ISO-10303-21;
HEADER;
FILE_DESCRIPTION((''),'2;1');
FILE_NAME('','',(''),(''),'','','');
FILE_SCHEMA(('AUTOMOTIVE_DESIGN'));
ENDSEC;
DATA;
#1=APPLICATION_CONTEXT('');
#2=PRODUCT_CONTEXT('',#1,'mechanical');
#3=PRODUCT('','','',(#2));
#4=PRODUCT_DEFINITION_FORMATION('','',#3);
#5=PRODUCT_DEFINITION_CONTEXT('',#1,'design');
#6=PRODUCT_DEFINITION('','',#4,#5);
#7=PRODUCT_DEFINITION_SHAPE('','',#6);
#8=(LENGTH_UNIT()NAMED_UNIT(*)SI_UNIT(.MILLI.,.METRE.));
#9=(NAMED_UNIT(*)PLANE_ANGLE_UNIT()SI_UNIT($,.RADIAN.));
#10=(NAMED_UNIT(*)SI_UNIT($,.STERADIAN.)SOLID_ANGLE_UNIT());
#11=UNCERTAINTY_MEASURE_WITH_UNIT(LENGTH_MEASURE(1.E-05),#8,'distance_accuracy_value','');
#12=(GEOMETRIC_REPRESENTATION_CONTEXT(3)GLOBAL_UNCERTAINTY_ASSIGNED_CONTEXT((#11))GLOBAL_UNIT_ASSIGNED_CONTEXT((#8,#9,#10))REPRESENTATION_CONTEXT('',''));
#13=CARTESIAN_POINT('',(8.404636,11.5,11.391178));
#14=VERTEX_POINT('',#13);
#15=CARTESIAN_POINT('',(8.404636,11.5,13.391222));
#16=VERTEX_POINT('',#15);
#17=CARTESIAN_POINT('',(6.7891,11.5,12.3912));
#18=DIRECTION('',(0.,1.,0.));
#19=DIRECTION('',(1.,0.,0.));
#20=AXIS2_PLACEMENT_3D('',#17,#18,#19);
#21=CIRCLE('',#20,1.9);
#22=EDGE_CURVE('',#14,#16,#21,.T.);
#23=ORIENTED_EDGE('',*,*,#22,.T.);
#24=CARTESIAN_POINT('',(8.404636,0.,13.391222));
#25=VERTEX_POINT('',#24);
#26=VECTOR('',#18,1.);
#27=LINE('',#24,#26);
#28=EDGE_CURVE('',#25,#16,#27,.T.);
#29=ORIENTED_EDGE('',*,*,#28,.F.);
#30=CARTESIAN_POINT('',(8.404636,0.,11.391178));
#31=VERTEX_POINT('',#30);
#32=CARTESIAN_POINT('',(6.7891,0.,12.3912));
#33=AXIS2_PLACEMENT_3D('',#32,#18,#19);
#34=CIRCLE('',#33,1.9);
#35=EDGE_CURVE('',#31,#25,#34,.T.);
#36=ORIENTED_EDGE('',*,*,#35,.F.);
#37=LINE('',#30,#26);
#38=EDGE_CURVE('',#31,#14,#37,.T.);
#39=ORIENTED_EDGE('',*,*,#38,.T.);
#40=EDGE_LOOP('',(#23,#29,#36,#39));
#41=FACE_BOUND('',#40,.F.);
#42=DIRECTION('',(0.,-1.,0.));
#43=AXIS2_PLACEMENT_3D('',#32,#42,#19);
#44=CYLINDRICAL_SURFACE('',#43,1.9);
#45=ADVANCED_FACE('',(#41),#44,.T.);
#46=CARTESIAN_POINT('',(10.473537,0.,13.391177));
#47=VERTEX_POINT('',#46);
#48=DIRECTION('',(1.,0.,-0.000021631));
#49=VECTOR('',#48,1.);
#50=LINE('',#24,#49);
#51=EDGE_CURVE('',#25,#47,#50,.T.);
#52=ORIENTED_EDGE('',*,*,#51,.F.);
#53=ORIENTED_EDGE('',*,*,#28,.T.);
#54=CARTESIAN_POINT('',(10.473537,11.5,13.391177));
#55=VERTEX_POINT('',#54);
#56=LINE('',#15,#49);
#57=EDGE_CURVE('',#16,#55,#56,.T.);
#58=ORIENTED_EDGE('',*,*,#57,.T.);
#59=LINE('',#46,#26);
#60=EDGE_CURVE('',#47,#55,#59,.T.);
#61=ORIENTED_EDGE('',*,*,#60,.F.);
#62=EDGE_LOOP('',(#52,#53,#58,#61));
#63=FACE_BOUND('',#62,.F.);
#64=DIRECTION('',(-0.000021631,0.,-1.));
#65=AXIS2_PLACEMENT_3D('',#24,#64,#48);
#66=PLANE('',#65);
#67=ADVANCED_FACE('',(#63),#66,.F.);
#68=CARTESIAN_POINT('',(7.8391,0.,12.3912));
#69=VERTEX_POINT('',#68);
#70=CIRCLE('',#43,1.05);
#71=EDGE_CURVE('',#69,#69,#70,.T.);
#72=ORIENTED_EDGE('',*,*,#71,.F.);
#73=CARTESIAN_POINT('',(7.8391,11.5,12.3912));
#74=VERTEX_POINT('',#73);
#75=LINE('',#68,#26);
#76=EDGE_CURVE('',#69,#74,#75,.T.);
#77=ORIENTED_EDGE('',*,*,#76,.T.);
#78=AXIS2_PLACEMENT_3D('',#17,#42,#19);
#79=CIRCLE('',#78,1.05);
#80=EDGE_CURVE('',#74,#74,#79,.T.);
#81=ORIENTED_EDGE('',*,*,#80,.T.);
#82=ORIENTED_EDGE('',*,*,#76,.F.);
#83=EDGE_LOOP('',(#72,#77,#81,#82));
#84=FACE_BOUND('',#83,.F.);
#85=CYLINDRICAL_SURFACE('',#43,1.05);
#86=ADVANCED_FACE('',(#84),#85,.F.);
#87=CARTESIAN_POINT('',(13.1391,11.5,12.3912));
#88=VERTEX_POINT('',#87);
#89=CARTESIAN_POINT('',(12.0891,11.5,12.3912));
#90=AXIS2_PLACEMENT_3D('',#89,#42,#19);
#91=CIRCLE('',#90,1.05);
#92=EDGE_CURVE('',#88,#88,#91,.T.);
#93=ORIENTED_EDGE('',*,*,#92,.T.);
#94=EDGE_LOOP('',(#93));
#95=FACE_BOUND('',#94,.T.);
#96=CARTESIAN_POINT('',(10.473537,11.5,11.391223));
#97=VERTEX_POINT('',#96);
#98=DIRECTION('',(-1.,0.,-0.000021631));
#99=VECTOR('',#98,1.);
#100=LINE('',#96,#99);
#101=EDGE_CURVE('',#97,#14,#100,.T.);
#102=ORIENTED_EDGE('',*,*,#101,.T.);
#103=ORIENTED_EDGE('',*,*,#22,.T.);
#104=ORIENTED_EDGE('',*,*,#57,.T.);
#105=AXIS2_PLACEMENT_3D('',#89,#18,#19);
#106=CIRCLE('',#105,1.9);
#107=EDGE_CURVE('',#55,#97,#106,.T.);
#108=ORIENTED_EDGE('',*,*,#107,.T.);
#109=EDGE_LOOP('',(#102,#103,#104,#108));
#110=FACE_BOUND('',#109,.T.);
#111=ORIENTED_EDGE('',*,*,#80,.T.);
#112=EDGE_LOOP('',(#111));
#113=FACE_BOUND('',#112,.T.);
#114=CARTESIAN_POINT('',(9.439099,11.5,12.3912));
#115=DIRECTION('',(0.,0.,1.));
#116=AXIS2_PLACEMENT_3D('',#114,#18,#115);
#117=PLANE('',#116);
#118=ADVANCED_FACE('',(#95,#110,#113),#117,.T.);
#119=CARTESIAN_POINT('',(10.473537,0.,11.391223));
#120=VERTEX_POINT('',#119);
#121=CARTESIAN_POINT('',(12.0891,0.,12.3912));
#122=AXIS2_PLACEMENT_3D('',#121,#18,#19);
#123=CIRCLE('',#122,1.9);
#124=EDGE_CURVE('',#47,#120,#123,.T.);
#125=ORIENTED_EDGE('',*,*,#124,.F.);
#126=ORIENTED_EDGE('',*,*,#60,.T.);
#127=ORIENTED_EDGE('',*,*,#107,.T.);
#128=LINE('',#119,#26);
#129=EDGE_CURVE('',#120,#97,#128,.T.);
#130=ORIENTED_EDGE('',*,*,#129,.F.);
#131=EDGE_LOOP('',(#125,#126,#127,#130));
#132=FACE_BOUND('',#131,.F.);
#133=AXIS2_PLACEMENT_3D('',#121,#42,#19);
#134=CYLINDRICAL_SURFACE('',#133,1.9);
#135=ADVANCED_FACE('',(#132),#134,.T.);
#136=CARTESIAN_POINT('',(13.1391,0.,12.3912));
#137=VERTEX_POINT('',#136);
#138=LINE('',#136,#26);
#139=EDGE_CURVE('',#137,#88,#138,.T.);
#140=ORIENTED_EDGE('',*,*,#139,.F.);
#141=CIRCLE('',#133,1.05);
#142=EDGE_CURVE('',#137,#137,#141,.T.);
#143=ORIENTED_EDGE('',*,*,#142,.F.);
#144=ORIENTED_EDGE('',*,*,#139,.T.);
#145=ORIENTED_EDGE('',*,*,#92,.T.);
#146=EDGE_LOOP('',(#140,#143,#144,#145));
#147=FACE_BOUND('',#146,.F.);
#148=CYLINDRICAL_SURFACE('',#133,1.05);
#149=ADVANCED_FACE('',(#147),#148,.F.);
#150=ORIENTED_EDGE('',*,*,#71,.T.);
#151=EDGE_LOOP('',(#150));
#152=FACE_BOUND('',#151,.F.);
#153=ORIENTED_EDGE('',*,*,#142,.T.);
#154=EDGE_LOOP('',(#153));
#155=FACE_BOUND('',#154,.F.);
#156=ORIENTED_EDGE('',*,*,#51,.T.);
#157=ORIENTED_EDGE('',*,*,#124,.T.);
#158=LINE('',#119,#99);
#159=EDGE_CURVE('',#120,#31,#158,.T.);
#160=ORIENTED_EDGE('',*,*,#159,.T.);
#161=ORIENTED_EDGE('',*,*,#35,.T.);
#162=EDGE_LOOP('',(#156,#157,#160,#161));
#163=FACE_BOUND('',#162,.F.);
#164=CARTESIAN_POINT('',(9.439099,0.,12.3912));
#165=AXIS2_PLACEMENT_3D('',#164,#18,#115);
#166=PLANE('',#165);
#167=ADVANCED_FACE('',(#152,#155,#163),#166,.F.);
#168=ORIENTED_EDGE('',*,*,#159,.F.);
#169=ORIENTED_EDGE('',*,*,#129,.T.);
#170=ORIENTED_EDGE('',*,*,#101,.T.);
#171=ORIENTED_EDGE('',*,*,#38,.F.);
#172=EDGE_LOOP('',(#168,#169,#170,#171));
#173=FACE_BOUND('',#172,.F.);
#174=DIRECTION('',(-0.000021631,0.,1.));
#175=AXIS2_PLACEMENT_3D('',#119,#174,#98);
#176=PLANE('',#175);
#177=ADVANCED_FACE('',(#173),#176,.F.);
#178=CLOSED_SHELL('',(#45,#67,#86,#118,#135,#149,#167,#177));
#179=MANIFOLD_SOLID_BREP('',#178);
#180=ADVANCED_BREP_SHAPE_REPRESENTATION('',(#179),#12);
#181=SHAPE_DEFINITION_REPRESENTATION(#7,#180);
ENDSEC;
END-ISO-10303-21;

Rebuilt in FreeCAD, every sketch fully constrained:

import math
import FreeCAD as App
import Part
import Sketcher

V = App.Vector
Q = App.Units.Quantity

doc = App.newDocument("Part")
body = doc.addObject("PartDesign::Body", "Body")

# Sketch on XZ plane
sketch1 = body.newObject("Sketcher::SketchObject", "Sketch")
sketch1.AttachmentSupport = (doc.getObject("XZ_Plane"), [""])
sketch1.MapMode = "FlatFace"
sketch1.addGeometry(Part.LineSegment(V(10.5, 13.4, 0), V(8.4, 13.4, 0)), False)
sketch1.addGeometry(Part.ArcOfCircle(Part.Circle(V(6.8, 12.4, 0), V(0, 0, 1), 1.9), math.radians(32), math.radians(328)), False)
sketch1.addGeometry(Part.LineSegment(V(8.4, 11.4, 0), V(10.5, 11.4, 0)), False)
sketch1.addGeometry(Part.ArcOfCircle(Part.Circle(V(12.1, 12.4, 0), V(0, 0, 1), 1.9), math.radians(-148), math.radians(148)), False)
sketch1.addGeometry(Part.Circle(V(6.8, 12.4, 0), V(0, 0, 1), 1.1), False)
sketch1.addGeometry(Part.Circle(V(12.1, 12.4, 0), V(0, 0, 1), 1.1), False)
sketch1.addConstraint(Sketcher.Constraint("Coincident", 0, 2, 1, 1))
sketch1.addConstraint(Sketcher.Constraint("Coincident", 1, 2, 2, 1))
sketch1.addConstraint(Sketcher.Constraint("Coincident", 2, 2, 3, 1))
sketch1.addConstraint(Sketcher.Constraint("Coincident", 3, 2, 0, 1))
sketch1.addConstraint(Sketcher.Constraint("Horizontal", 0))
sketch1.addConstraint(Sketcher.Constraint("Horizontal", 2))
sketch1.addConstraint(Sketcher.Constraint("Coincident", 4, 3, 1, 3))
sketch1.addConstraint(Sketcher.Constraint("Coincident", 5, 3, 3, 3))
sketch1.addConstraint(Sketcher.Constraint("Equal", 1, 3))
sketch1.addConstraint(Sketcher.Constraint("Equal", 4, 5))
sketch1.addConstraint(Sketcher.Constraint("Horizontal", 1, 3, 3, 3))
sketch1.addConstraint(Sketcher.Constraint("Vertical", 0, 2, 1, 2))
sketch1.addConstraint(Sketcher.Constraint("Diameter", 4, Q("2.1 mm")))
sketch1.addConstraint(Sketcher.Constraint("Radius", 1, Q("1.9 mm")))
sketch1.addConstraint(Sketcher.Constraint("DistanceY", 1, 3, 0, 2, Q("1 mm")))
sketch1.addConstraint(Sketcher.Constraint("DistanceX", 1, 3, 3, 3, Q("5.3 mm")))
sketch1.addConstraint(Sketcher.Constraint("DistanceX", -1, 1, 1, 3, Q("6.789 mm")))
sketch1.addConstraint(Sketcher.Constraint("DistanceY", -1, 1, 1, 3, Q("12.3912 mm")))
pad1 = body.newObject("PartDesign::Pad", "Pad")
pad1.Profile = sketch1
pad1.Length = 11.5
pad1.Reversed = True

doc.recompute()
